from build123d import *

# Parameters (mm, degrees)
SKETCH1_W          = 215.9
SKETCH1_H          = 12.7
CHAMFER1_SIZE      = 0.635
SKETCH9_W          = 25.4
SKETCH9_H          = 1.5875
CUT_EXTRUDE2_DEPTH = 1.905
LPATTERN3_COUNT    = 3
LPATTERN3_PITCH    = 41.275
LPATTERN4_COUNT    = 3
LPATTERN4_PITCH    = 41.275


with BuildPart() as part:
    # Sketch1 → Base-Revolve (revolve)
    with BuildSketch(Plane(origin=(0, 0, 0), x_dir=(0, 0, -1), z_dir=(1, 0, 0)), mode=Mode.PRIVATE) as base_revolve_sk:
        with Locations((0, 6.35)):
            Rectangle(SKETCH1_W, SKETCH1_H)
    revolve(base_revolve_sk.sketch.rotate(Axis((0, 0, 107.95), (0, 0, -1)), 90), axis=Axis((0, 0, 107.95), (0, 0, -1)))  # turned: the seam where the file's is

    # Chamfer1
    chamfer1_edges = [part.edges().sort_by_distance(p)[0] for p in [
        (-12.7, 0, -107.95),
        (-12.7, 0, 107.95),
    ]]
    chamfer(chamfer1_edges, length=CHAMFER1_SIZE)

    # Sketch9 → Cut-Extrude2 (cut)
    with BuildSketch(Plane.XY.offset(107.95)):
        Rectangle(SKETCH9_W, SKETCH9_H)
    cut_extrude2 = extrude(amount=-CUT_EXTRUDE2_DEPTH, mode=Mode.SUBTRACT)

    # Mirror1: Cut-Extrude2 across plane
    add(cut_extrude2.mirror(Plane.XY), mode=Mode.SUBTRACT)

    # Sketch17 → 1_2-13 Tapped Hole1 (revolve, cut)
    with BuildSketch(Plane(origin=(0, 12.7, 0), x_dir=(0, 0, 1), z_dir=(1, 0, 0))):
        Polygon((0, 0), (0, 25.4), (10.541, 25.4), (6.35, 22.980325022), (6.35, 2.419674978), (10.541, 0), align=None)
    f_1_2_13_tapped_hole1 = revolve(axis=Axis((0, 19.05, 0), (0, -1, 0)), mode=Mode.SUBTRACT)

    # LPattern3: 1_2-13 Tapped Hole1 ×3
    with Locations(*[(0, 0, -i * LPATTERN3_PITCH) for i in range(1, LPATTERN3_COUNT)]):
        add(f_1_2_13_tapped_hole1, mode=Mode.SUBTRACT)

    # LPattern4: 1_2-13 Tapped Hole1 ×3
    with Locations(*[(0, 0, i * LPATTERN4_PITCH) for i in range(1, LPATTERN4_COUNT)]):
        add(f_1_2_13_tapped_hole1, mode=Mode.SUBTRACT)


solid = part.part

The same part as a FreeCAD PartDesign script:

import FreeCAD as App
import Part
import Sketcher

V = App.Vector
Q = App.Units.Quantity


def edges_at(feature, points):
    """Names of the edges that pass closest to the given points."""
    edges = feature.Shape.Edges
    near = lambda p: min(range(len(edges)), key=lambda i: edges[i].distToShape(Part.Vertex(*p))[0])
    return sorted({f"Edge{near(p) + 1}" for p in points})

doc = App.newDocument("Part")
params = doc.addObject("Spreadsheet::Sheet", "Params")
for row, (alias, value) in enumerate([
    ("sketch1_width", "0.5 in"),
    ("sketch1_height", "8.5 in"),
    ("revolution_angle", "360 deg"),
    ("chamfer_size", "0.025 in"),
    ("sketch2_width", "1 in"),
    ("sketch2_height", "0.0625 in"),
    ("pocket1_length", "0.075 in"),
    ("sketch3_width", "1 in"),
    ("sketch3_height", "0.415 in"),
    ("groove_angle", "360 deg"),
    ("linearpattern_pitch", "1.625 in"),
    ("linearpattern2_pitch", "1.625 in"),
], start=1):
    params.set(f"A{row}", alias)
    params.set(f"B{row}", "=" + value)
    params.setAlias(f"B{row}", alias)

body = doc.addObject("PartDesign::Body", "Body")

# Sketch on YZ plane
sketch1 = body.newObject("Sketcher::SketchObject", "Sketch")
sketch1.AttachmentSupport = (doc.getObject("YZ_Plane"), [""])
sketch1.MapMode = "FlatFace"
sketch1.addGeometry([
    Part.LineSegment(V(12.7, 107.95, 0), V(0, 107.95, 0)),
    Part.LineSegment(V(0, 107.95, 0), V(0, -107.95, 0)),
    Part.LineSegment(V(0, -107.95, 0), V(12.7, -107.95, 0)),
    Part.LineSegment(V(12.7, -107.95, 0), V(12.7, 107.95, 0)),
], False)
sketch1.addConstraint([
    Sketcher.Constraint("Coincident", 0, 2, 1, 1),
    Sketcher.Constraint("Coincident", 1, 2, 2, 1),
    Sketcher.Constraint("Coincident", 2, 2, 3, 1),
    Sketcher.Constraint("Coincident", 3, 2, 0, 1),
    Sketcher.Constraint("Horizontal", 0),
    Sketcher.Constraint("Vertical", 1),
    Sketcher.Constraint("Horizontal", 2),
    Sketcher.Constraint("Vertical", 3),
    Sketcher.Constraint("Symmetric", 0, 2, 1, 2, -1, 1),
    Sketcher.Constraint("DistanceX", 0, 2, 0, 1, Q("0.5 in")),
    Sketcher.Constraint("DistanceY", 1, 2, 1, 1, Q("8.5 in")),
])
sketch1.setExpression("Constraints[9]", "Params.sketch1_width")
sketch1.setExpression("Constraints[10]", "Params.sketch1_height")
revolution = body.newObject("PartDesign::Revolution", "Revolution")
revolution.Profile = sketch1
revolution.ReferenceAxis = (sketch1, ["V_Axis"])
revolution.setExpression("Angle", "Params.revolution_angle")
doc.recompute()

chamfer = body.newObject("PartDesign::Chamfer", "Chamfer")
chamfer.Base = (revolution, edges_at(revolution, [(-12.7, 0, -107.95), (-12.7, 0, 107.95)]))
chamfer.setExpression("Size", "Params.chamfer_size")

# Sketch on XY plane
sketch2 = body.newObject("Sketcher::SketchObject", "Sketch001")
sketch2.AttachmentSupport = (doc.getObject("XY_Plane"), [""])
sketch2.MapMode = "FlatFace"
sketch2.AttachmentOffset = App.Placement(V(0, 0, 4.25 * 25.4), App.Rotation())
sketch2.addGeometry([
    Part.LineSegment(V(-12.7, 0.79375, 0), V(-12.7, -0.79375, 0)),
    Part.LineSegment(V(-12.7, -0.79375, 0), V(12.7, -0.79375, 0)),
    Part.LineSegment(V(12.7, -0.79375, 0), V(12.7, 0.79375, 0)),
    Part.LineSegment(V(12.7, 0.79375, 0), V(-12.7, 0.79375, 0)),
], False)
sketch2.addConstraint([
    Sketcher.Constraint("Coincident", 0, 2, 1, 1),
    Sketcher.Constraint("Coincident", 1, 2, 2, 1),
    Sketcher.Constraint("Coincident", 2, 2, 3, 1),
    Sketcher.Constraint("Coincident", 3, 2, 0, 1),
    Sketcher.Constraint("Vertical", 0),
    Sketcher.Constraint("Horizontal", 1),
    Sketcher.Constraint("Vertical", 2),
    Sketcher.Constraint("Horizontal", 3),
    Sketcher.Constraint("Symmetric", 0, 2, 2, 2, -1, 1),
    Sketcher.Constraint("DistanceX", 1, 1, 1, 2, Q("1 in")),
    Sketcher.Constraint("DistanceY", 0, 2, 0, 1, Q("0.0625 in")),
])
sketch2.setExpression("Constraints[9]", "Params.sketch2_width")
sketch2.setExpression("Constraints[10]", "Params.sketch2_height")
pocket1 = body.newObject("PartDesign::Pocket", "Pocket")
pocket1.Profile = sketch2
pocket1.setExpression("Length", "Params.pocket1_length")
doc.recompute()

mirrored = body.newObject("PartDesign::Mirrored", "Mirrored")
mirrored.Originals = [pocket1]
mirrored.MirrorPlane = (doc.getObject("XY_Plane"), [""])
body.Tip = mirrored

# Sketch on YZ plane
sketch3 = body.newObject("Sketcher::SketchObject", "Sketch002")
sketch3.AttachmentSupport = (doc.getObject("YZ_Plane"), [""])
sketch3.MapMode = "FlatFace"
sketch3.addGeometry([
    Part.LineSegment(V(-12.7, 0, 0), V(12.7, 0, 0)),  # 0
    Part.LineSegment(V(12.7, 0, 0), V(12.7, 10.541, 0)),  # 1
    Part.LineSegment(V(12.7, 10.541, 0), V(10.280325, 6.35, 0)),  # 2
    Part.LineSegment(V(10.280325, 6.35, 0), V(-10.280325, 6.35, 0)),  # 3
    Part.LineSegment(V(-10.280325, 6.35, 0), V(-12.7, 10.541, 0)),  # 4
    Part.LineSegment(V(-12.7, 10.541, 0), V(-12.7, 0, 0)),  # 5
], False)
sketch3.addConstraint([
    Sketcher.Constraint("Coincident", 0, 2, 1, 1),
    Sketcher.Constraint("Coincident", 1, 2, 2, 1),
    Sketcher.Constraint("Coincident", 2, 2, 3, 1),
    Sketcher.Constraint("Coincident", 3, 2, 4, 1),
    Sketcher.Constraint("Coincident", 4, 2, 5, 1),
    Sketcher.Constraint("Coincident", 5, 2, 0, 1),
    Sketcher.Constraint("Horizontal", 0),
    Sketcher.Constraint("Vertical", 1),
    Sketcher.Constraint("Horizontal", 3),
    Sketcher.Constraint("Vertical", 5),
    Sketcher.Constraint("Symmetric", 0, 2, 5, 2, -1, 1),
    Sketcher.Constraint("Horizontal", 1, 2, 4, 2),
    Sketcher.Constraint("Equal", 2, 4),
    Sketcher.Constraint("DistanceX", 0, 1, 0, 2, Q("1 in")),
    Sketcher.Constraint("Angle", 2, Q("-120 deg")),
    Sketcher.Constraint("DistanceY", 1, 1, 1, 2, Q("0.415 in")),
    Sketcher.Constraint("DistanceY", -1, 1, 2, 2, Q("0.25 in")),
])
sketch3.setExpression("Constraints[13]", "Params.sketch3_width")
sketch3.setExpression("Constraints[15]", "Params.sketch3_height")
groove = body.newObject("PartDesign::Groove", "Groove")
groove.Profile = sketch3
groove.ReferenceAxis = (sketch3, ["H_Axis"])
groove.setExpression("Angle", "Params.groove_angle")
doc.recompute()

linearpattern = body.newObject("PartDesign::LinearPattern", "LinearPattern")
linearpattern.Originals = [groove]
linearpattern.Direction = (doc.getObject("Z_Axis"), [""])
linearpattern.Mode = "offset"
linearpattern.setExpression("Offset", "Params.linearpattern_pitch")
linearpattern.Occurrences = 3
linearpattern.Reversed = True
body.Tip = linearpattern
doc.recompute()

linearpattern2 = body.newObject("PartDesign::LinearPattern", "LinearPattern001")
linearpattern2.Originals = [groove]
linearpattern2.Direction = (doc.getObject("Z_Axis"), [""])
linearpattern2.Mode = "offset"
linearpattern2.setExpression("Offset", "Params.linearpattern2_pitch")
linearpattern2.Occurrences = 3
body.Tip = linearpattern2

doc.recompute()
